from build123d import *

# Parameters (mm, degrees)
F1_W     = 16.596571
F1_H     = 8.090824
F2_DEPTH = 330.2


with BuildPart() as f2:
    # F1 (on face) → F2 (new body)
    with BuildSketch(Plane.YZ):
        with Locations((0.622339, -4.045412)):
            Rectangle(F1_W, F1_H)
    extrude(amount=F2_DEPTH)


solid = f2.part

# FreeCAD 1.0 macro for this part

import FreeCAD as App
import Part
import Sketcher
Q = App.Units.Quantity


def add_polygon(sketch, points):
    """Adds a closed chain of lines whose ends are joined by coincident constraints."""
    first, n = sketch.GeometryCount, len(points)
    for a, b in zip(points, points[1:] + points[:1]):
        sketch.addGeometry(Part.LineSegment(App.Vector(*a, 0), App.Vector(*b, 0)), False)
    for i in range(n):
        sketch.addConstraint(Sketcher.Constraint("Coincident", first + i, 2, first + (i + 1) % n, 1))

doc = App.newDocument("Part")
params = doc.addObject("Spreadsheet::Sheet", "Params")
for row, (alias, value) in enumerate([
    ("pad1_length", "13 in"),
], start=1):
    params.set(f"A{row}", alias)
    params.set(f"B{row}", "=" + value)
    params.setAlias(f"B{row}", alias)

body = doc.addObject("PartDesign::Body", "Body")

# Sketch on YZ plane
sketch1 = doc.addObject("Sketcher::SketchObject", "Sketch")
body.addObject(sketch1)
sketch1.AttachmentSupport = (doc.YZ_Plane, [""])
sketch1.MapMode = "FlatFace"
add_polygon(sketch1, [(-8, 0), (-8, -8), (9, -8), (9, 0)])  # lines 0-3
sketch1.addConstraint([
    Sketcher.Constraint("Vertical", 0),
    Sketcher.Constraint("Horizontal", 1),
    Sketcher.Constraint("Vertical", 2),
    Sketcher.Constraint("Horizontal", 3),
    Sketcher.Constraint("PointOnObject", 2, 2, -1),
    Sketcher.Constraint("DistanceX", 1, 1, 1, 2, Q("16.596571 mm")),
    Sketcher.Constraint("DistanceY", 0, 2, 0, 1, Q("8.090824 mm")),
    Sketcher.Constraint("DistanceX", 0, 2, -1, 1, Q("7.675947 mm")),
])
pad1 = doc.addObject("PartDesign::Pad", "Pad")
body.addObject(pad1)
pad1.Profile = sketch1
pad1.setExpression("Length", "Params.pad1_length")

doc.recompute()
